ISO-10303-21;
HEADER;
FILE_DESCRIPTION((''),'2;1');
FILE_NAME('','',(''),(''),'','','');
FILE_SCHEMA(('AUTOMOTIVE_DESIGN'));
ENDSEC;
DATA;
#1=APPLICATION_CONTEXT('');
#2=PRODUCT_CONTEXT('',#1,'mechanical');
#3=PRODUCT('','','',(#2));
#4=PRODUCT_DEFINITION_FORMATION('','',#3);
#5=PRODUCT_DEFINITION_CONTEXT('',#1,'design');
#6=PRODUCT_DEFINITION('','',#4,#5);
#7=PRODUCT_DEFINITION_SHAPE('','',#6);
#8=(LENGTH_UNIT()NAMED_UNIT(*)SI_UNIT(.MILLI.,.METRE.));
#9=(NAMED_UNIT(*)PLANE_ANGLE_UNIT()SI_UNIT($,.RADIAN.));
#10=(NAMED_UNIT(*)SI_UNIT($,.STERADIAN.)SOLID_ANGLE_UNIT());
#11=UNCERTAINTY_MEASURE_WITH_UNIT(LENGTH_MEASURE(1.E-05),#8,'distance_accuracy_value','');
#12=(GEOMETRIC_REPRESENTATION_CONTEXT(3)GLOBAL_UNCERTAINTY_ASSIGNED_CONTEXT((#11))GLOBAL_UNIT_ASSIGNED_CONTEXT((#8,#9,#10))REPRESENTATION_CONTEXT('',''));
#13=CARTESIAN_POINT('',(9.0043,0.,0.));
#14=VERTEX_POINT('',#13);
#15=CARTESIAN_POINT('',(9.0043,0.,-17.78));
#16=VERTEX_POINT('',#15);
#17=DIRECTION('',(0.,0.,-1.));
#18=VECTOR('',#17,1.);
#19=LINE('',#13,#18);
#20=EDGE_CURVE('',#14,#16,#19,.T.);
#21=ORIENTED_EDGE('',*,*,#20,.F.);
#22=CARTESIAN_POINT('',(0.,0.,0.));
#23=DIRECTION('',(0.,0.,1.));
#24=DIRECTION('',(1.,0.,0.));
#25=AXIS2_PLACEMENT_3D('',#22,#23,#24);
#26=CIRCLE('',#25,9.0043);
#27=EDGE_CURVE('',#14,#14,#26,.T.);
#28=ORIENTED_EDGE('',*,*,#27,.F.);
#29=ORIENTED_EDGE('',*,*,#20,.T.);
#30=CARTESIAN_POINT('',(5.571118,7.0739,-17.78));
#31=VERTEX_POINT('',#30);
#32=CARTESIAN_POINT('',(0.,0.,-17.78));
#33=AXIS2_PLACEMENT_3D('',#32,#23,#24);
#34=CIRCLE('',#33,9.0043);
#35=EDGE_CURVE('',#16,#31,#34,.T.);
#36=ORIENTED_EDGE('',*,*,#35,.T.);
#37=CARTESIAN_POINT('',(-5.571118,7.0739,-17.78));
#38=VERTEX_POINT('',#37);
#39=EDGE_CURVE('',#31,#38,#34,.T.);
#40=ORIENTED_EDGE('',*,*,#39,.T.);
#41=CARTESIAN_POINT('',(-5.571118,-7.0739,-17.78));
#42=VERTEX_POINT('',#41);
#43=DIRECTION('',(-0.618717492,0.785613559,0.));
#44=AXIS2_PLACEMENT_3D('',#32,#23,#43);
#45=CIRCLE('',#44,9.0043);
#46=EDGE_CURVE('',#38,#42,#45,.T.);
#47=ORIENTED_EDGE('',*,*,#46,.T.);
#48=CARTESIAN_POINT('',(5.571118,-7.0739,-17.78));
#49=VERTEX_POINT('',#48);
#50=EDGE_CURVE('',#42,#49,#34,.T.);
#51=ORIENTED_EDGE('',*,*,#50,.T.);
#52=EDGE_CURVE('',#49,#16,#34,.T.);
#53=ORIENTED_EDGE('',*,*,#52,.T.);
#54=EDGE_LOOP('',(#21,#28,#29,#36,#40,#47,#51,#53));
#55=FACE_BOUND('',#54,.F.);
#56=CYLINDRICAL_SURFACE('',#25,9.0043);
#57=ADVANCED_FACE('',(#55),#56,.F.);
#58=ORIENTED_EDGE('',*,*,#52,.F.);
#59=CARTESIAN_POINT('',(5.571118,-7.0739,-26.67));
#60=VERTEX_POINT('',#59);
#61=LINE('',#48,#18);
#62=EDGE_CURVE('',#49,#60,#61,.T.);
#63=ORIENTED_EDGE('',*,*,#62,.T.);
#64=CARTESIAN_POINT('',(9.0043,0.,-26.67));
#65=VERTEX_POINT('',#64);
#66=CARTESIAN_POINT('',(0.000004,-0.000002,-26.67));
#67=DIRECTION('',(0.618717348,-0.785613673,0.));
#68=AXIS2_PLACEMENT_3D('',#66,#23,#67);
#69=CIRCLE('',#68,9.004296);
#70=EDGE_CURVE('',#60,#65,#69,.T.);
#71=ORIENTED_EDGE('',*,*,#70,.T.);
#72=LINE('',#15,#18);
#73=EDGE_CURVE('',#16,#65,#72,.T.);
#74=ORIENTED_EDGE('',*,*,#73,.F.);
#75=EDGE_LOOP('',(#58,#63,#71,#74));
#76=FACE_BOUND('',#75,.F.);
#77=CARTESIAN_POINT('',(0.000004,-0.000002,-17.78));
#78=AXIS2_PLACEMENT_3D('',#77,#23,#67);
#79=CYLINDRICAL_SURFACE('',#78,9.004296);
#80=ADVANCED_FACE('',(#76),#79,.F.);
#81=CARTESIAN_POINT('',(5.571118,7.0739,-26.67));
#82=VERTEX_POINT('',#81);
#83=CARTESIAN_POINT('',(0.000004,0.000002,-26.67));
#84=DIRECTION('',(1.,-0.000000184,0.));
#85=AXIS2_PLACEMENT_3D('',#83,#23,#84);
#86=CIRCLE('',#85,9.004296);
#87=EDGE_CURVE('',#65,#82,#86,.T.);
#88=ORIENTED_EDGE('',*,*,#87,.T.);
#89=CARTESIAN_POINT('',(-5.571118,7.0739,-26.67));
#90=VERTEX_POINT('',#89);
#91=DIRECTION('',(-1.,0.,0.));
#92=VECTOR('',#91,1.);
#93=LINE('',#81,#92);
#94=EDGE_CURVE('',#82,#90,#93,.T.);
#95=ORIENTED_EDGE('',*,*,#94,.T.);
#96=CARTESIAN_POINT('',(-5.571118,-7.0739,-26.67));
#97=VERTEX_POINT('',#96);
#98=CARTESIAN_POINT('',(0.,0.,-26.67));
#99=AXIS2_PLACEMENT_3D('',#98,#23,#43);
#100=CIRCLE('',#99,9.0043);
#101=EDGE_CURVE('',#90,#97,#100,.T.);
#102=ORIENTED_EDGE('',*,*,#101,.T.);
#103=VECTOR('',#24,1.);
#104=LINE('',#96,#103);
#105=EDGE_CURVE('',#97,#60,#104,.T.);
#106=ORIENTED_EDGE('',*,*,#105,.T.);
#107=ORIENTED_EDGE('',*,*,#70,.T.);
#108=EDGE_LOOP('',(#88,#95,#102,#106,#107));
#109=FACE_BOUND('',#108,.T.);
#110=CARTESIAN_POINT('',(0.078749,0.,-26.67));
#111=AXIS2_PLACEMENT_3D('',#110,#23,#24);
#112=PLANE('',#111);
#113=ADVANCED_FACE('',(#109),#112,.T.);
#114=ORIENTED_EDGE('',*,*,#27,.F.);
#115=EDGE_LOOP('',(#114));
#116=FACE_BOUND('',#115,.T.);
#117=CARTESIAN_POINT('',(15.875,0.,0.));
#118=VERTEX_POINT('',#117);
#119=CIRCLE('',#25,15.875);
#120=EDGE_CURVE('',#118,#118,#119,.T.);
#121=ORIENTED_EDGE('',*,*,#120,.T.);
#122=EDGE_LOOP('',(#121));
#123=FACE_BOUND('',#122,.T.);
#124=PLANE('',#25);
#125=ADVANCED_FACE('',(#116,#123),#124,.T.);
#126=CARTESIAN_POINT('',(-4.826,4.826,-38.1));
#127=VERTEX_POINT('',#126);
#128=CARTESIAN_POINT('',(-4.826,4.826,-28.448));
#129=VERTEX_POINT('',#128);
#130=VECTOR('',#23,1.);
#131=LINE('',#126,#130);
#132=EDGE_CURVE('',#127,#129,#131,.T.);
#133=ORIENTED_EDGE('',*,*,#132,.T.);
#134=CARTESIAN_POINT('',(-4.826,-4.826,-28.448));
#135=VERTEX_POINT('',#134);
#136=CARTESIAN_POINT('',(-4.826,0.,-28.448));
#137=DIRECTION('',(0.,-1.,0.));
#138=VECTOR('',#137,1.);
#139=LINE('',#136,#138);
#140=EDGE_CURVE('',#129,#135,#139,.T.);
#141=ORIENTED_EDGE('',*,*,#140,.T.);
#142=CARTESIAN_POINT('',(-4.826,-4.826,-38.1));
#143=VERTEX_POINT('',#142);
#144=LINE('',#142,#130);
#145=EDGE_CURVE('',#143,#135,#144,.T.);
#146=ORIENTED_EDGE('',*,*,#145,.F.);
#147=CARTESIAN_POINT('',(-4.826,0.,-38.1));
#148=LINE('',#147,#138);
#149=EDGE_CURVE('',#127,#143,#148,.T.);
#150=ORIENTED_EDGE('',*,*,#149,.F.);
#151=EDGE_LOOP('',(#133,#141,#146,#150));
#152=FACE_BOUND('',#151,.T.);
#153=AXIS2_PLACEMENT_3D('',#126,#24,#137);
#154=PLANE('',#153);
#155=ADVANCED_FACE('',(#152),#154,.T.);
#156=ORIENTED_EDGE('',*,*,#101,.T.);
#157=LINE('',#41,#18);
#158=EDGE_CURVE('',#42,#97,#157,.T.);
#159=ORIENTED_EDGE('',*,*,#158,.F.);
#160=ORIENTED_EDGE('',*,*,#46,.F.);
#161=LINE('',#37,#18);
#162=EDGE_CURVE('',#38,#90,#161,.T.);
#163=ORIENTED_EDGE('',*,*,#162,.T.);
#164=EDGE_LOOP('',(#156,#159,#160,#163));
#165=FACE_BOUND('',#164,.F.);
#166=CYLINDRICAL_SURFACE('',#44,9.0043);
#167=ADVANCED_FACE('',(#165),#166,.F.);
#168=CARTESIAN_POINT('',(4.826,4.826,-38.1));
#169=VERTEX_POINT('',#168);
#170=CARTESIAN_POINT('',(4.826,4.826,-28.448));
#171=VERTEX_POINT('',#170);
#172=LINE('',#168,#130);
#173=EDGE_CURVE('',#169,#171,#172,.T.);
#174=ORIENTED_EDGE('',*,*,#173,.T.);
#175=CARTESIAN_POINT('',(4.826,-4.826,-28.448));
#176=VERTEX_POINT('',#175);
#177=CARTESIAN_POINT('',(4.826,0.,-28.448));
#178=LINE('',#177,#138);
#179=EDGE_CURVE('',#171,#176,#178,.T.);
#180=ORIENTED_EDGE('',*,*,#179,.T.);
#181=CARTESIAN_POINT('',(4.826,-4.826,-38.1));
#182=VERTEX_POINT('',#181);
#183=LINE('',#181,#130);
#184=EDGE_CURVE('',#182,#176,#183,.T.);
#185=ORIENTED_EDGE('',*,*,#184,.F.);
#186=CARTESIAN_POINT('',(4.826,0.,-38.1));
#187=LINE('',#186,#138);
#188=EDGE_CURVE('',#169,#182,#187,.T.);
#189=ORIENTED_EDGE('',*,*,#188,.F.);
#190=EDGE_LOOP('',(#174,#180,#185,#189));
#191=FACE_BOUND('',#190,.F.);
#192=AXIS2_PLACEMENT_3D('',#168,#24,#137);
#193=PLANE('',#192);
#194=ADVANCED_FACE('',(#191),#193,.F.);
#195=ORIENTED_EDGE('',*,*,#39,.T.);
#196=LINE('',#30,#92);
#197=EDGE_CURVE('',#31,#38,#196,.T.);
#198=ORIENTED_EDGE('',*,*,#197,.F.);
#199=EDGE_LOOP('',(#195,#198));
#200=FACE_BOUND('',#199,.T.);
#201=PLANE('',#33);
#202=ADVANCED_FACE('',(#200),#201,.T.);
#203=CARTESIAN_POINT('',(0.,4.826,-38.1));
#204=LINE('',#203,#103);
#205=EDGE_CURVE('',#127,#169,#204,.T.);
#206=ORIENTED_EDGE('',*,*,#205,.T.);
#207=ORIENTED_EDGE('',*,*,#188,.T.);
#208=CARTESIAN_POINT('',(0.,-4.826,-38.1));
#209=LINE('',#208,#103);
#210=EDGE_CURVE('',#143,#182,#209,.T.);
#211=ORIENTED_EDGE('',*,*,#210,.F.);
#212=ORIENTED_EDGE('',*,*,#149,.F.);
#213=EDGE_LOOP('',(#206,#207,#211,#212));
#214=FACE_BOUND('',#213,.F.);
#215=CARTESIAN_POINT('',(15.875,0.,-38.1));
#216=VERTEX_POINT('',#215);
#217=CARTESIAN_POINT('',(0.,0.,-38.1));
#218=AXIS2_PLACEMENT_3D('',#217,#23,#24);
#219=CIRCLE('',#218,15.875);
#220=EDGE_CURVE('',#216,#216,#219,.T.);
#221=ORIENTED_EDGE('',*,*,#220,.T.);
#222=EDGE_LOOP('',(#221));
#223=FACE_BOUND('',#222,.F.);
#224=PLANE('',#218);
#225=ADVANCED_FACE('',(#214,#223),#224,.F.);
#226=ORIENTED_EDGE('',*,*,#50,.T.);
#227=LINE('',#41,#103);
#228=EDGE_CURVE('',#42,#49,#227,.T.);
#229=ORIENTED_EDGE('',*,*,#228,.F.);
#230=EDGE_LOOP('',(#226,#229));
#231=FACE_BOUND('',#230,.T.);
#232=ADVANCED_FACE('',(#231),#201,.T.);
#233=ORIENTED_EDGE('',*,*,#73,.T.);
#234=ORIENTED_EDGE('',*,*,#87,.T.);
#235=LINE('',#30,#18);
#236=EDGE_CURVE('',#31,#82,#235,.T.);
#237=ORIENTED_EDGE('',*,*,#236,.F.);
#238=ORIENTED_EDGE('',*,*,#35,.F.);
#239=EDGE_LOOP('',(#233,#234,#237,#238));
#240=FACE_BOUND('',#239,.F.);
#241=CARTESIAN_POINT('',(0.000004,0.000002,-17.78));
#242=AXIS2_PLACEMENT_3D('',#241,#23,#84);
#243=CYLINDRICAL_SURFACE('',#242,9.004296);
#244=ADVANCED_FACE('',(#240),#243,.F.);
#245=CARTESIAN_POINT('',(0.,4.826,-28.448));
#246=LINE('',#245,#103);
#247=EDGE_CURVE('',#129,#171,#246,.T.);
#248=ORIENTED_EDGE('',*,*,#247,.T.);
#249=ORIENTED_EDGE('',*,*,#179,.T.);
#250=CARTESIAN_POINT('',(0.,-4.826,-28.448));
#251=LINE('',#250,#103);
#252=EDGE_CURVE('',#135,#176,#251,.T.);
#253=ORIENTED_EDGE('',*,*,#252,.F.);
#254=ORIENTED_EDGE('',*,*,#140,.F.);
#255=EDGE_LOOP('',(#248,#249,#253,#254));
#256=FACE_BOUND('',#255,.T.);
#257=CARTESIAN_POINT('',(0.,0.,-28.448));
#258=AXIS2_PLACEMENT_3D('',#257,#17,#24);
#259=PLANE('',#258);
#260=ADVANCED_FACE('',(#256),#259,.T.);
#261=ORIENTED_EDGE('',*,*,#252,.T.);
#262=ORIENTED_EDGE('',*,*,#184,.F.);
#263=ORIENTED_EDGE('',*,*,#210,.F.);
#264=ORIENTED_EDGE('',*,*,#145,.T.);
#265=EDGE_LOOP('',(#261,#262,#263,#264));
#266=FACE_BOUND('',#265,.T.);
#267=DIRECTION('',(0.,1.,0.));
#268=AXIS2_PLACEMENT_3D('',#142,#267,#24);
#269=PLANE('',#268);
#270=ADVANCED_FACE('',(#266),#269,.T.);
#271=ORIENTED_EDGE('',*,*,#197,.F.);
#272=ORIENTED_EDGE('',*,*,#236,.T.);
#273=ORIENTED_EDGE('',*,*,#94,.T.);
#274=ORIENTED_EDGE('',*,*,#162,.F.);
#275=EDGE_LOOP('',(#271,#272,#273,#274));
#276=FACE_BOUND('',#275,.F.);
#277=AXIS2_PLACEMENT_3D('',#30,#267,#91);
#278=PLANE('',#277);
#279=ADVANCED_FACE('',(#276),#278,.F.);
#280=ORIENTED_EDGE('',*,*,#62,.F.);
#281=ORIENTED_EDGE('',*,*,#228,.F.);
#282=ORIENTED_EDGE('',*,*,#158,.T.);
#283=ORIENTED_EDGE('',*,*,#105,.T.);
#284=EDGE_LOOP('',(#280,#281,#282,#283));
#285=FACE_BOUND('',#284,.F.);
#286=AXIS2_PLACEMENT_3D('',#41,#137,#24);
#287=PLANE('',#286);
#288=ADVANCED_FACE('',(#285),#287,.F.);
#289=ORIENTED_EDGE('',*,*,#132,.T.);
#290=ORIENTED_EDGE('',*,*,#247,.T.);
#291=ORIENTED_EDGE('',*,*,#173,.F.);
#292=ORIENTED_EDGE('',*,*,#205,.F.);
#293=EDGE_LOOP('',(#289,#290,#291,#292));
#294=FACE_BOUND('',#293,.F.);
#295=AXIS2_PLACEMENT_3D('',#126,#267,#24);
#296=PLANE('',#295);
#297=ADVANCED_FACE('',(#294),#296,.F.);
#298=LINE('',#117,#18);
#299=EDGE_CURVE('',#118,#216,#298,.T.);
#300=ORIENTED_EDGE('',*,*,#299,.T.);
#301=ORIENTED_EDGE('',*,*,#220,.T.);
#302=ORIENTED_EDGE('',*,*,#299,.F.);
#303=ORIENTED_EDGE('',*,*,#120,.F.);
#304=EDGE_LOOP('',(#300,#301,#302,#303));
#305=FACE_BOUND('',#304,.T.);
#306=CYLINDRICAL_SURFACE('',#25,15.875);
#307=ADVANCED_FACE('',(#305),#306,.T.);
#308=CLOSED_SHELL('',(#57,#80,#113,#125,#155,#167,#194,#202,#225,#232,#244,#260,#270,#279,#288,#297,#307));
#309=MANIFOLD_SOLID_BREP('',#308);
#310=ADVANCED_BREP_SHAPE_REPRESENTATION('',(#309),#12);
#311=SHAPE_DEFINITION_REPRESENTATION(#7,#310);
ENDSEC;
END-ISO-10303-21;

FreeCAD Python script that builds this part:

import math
import FreeCAD as App
import Part
import Sketcher
from FreeCAD import Vector
Q = App.Units.Quantity

doc = App.newDocument("Part")
params = doc.addObject("Spreadsheet::Sheet", "Params")
for row, (alias, value) in enumerate([
    ("sketch1_diameter", "1.25 in"),
    ("pad1_length", "1.5 in"),
    ("sketch2_width", "0.38 in"),
    ("pocket1_length", "0.38 in"),
    ("sketch3_diameter", "0.709 in"),
    ("pocket2_length", "0.7 in"),
    ("pocket3_length", "0.35 in"),
], start=1):
    params.set(f"A{row}", alias)
    params.set(f"B{row}", "=" + value)
    params.setAlias(f"B{row}", alias)

body = doc.addObject("PartDesign::Body", "Body")

# Sketch on XY plane
sketch1 = doc.addObject("Sketcher::SketchObject", "Sketch")
body.addObject(sketch1)
sketch1.AttachmentSupport = (doc.XY_Plane, [""])
sketch1.MapMode = "FlatFace"
sketch1.addGeometry(Part.Circle(Vector(0, 0, 0), Vector(0, 0, 1), 16), False)
sketch1.addConstraint(Sketcher.Constraint("Coincident", 0, 3, -1, 1))
sketch1.addConstraint(Sketcher.Constraint("Diameter", 0, Q("1.25 in")))
sketch1.setExpression("Constraints[1]", "Params.sketch1_diameter")
pad1 = doc.addObject("PartDesign::Pad", "Pad")
body.addObject(pad1)
pad1.Profile = sketch1
pad1.setExpression("Length", "Params.pad1_length")
pad1.Reversed = True

# Sketch on XY plane
sketch2 = doc.addObject("Sketcher::SketchObject", "Sketch001")
body.addObject(sketch2)
sketch2.AttachmentSupport = (doc.XY_Plane, [""])
sketch2.MapMode = "FlatFace"
sketch2.AttachmentOffset = App.Placement(Vector(0, 0, -1.5 * 25.4), App.Rotation())
sketch2.addGeometry(Part.LineSegment(Vector(-5, -5, 0), Vector(-5, 5, 0)), False)
sketch2.addGeometry(Part.LineSegment(Vector(-5, 5, 0), Vector(5, 5, 0)), False)
sketch2.addGeometry(Part.LineSegment(Vector(5, 5, 0), Vector(5, -5, 0)), False)
sketch2.addGeometry(Part.LineSegment(Vector(5, -5, 0), Vector(-5, -5, 0)), False)
sketch2.addConstraint(Sketcher.Constraint("Coincident", 0, 2, 1, 1))
sketch2.addConstraint(Sketcher.Constraint("Coincident", 1, 2, 2, 1))
sketch2.addConstraint(Sketcher.Constraint("Coincident", 2, 2, 3, 1))
sketch2.addConstraint(Sketcher.Constraint("Coincident", 3, 2, 0, 1))
sketch2.addConstraint(Sketcher.Constraint("Vertical", 0))
sketch2.addConstraint(Sketcher.Constraint("Horizontal", 1))
sketch2.addConstraint(Sketcher.Constraint("Vertical", 2))
sketch2.addConstraint(Sketcher.Constraint("Horizontal", 3))
sketch2.addConstraint(Sketcher.Constraint("Symmetric", 0, 2, 2, 2, -1, 1))
sketch2.addConstraint(Sketcher.Constraint("Equal", 3, 0))
sketch2.addConstraint(Sketcher.Constraint("DistanceX", 1, 1, 1, 2, Q("0.38 in")))
sketch2.setExpression("Constraints[10]", "Params.sketch2_width")
pocket1 = doc.addObject("PartDesign::Pocket", "Pocket")
body.addObject(pocket1)
pocket1.Profile = sketch2
pocket1.setExpression("Length", "Params.pocket1_length")
pocket1.Reversed = True

# Sketch on XY plane
sketch3 = doc.addObject("Sketcher::SketchObject", "Sketch002")
body.addObject(sketch3)
sketch3.AttachmentSupport = (doc.XY_Plane, [""])
sketch3.MapMode = "FlatFace"
sketch3.addGeometry(Part.Circle(Vector(0, 0, 0), Vector(0, 0, 1), 9), False)
sketch3.addConstraint(Sketcher.Constraint("Coincident", 0, 3, -1, 1))
sketch3.addConstraint(Sketcher.Constraint("Diameter", 0, Q("0.709 in")))
sketch3.setExpression("Constraints[1]", "Params.sketch3_diameter")
pocket2 = doc.addObject("PartDesign::Pocket", "Pocket001")
body.addObject(pocket2)
pocket2.Profile = sketch3
pocket2.setExpression("Length", "Params.pocket2_length")

# Sketch on XY plane
sketch4 = doc.addObject("Sketcher::SketchObject", "Sketch003")
body.addObject(sketch4)
sketch4.AttachmentSupport = (doc.XY_Plane, [""])
sketch4.MapMode = "FlatFace"
sketch4.AttachmentOffset = App.Placement(Vector(0, 0, -0.7 * 25.4), App.Rotation())
sketch4.addGeometry(Part.LineSegment(Vector(6, 7, 0), Vector(-6, 7, 0)), False)
sketch4.addGeometry(Part.ArcOfCircle(Part.Circle(Vector(0, 0, 0), Vector(0, 0, 1), 9), math.radians(128), math.radians(232)), False)
sketch4.addGeometry(Part.LineSegment(Vector(-6, -7, 0), Vector(6, -7, 0)), False)
sketch4.addGeometry(Part.ArcOfCircle(Part.Circle(Vector(0, 0, 0), Vector(0, 0, 1), 9), math.radians(-52), math.radians(0)), False)
sketch4.addGeometry(Part.ArcOfCircle(Part.Circle(Vector(0, 0, 0), Vector(0, 0, 1), 9), math.radians(0), math.radians(52)), False)
sketch4.addConstraint(Sketcher.Constraint("Coincident", 0, 2, 1, 1))
sketch4.addConstraint(Sketcher.Constraint("Coincident", 1, 2, 2, 1))
sketch4.addConstraint(Sketcher.Constraint("Coincident", 2, 2, 3, 1))
sketch4.addConstraint(Sketcher.Constraint("Tangent", 3, 2, 4, 1))
sketch4.addConstraint(Sketcher.Constraint("Coincident", 4, 2, 0, 1))
sketch4.addConstraint(Sketcher.Constraint("Horizontal", 0))
sketch4.addConstraint(Sketcher.Constraint("Horizontal", 2))
sketch4.addConstraint(Sketcher.Constraint("Coincident", 1, 3, -1, 1))
sketch4.addConstraint(Sketcher.Constraint("Coincident", 3, 3, -1, 1))
sketch4.addConstraint(Sketcher.Constraint("Equal", 3, 4))
sketch4.addConstraint(Sketcher.Constraint("Symmetric", 0, 2, 2, 2, -1, 1))
sketch4.addConstraint(Sketcher.Constraint("PointOnObject", 3, 2, -1))
sketch4.addConstraint(Sketcher.Constraint("Radius", 1, Q("0.3545 in")))
sketch4.addConstraint(Sketcher.Constraint("DistanceY", 1, 2, 0, 2, Q("0.557 in")))
pocket3 = doc.addObject("PartDesign::Pocket", "Pocket002")
body.addObject(pocket3)
pocket3.Profile = sketch4
pocket3.setExpression("Length", "Params.pocket3_length")

doc.recompute()
